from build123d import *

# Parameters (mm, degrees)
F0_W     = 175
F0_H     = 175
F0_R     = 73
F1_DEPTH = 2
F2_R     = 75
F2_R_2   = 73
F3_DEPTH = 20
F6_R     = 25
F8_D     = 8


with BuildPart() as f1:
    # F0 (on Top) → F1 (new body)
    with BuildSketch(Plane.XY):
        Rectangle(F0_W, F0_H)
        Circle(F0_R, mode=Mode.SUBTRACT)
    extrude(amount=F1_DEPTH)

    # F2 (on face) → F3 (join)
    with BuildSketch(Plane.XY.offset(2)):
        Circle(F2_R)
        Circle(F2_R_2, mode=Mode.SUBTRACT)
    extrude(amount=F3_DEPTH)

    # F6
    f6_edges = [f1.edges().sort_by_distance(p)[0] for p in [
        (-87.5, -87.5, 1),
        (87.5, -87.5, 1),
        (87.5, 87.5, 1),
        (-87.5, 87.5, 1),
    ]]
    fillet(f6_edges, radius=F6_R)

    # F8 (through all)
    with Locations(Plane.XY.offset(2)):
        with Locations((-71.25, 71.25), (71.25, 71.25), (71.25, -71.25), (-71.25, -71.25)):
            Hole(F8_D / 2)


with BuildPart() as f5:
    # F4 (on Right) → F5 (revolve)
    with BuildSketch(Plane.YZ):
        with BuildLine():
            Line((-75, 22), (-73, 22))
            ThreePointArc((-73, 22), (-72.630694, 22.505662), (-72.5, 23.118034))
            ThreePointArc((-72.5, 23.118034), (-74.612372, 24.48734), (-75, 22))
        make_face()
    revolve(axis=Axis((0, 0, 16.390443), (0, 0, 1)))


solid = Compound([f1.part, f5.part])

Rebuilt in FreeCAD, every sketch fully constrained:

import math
import FreeCAD as App
import Part
import Sketcher

V = App.Vector


def edges_at(feature, points):
    """Names of the edges that pass closest to the given points."""
    edges = feature.Shape.Edges
    near = lambda p: min(range(len(edges)), key=lambda i: edges[i].distToShape(Part.Vertex(*p))[0])
    return sorted({f"Edge{near(p) + 1}" for p in points})

doc = App.newDocument("Part")
params = doc.addObject("Spreadsheet::Sheet", "Params")
for row, (alias, value) in enumerate([
    ("sketch1_diameter", "146 mm"),
    ("sketch1_width", "175 mm"),
    ("pad1_length", "2 mm"),
    ("sketch2_diameter", "150 mm"),
    ("sketch2_diameter2", "146 mm"),
    ("pad2_length", "20 mm"),
    ("fillet_radius", "25 mm"),
    ("sketch3_diameter", "8 mm"),
    ("hole_diameter", "8 mm"),
    ("sketch4_radius", "1.5 mm"),
    ("sketch4_width", "2 mm"),
    ("revolution_angle", "360 deg"),
], start=1):
    params.set(f"A{row}", alias)
    params.set(f"B{row}", "=" + value)
    params.setAlias(f"B{row}", alias)

body = doc.addObject("PartDesign::Body", "Body")

# Sketch on XY plane
sketch1 = doc.addObject("Sketcher::SketchObject", "Sketch")
body.addObject(sketch1)
sketch1.AttachmentSupport = (doc.XY_Plane, [""])
sketch1.MapMode = "FlatFace"
sketch1.addGeometry(Part.LineSegment(V(-88, 88, 0), V(-88, -88, 0)), False)
sketch1.addGeometry(Part.LineSegment(V(-88, -88, 0), V(88, -88, 0)), False)
sketch1.addGeometry(Part.LineSegment(V(88, -88, 0), V(88, 88, 0)), False)
sketch1.addGeometry(Part.LineSegment(V(88, 88, 0), V(-88, 88, 0)), False)
sketch1.addGeometry(Part.Circle(V(0, 0, 0), V(0, 0, 1), 73), False)
sketch1.addConstraint(Sketcher.Constraint("Coincident", 0, 2, 1, 1))
sketch1.addConstraint(Sketcher.Constraint("Coincident", 1, 2, 2, 1))
sketch1.addConstraint(Sketcher.Constraint("Coincident", 2, 2, 3, 1))
sketch1.addConstraint(Sketcher.Constraint("Coincident", 3, 2, 0, 1))
sketch1.addConstraint(Sketcher.Constraint("Vertical", 0))
sketch1.addConstraint(Sketcher.Constraint("Horizontal", 1))
sketch1.addConstraint(Sketcher.Constraint("Vertical", 2))
sketch1.addConstraint(Sketcher.Constraint("Horizontal", 3))
sketch1.addConstraint(Sketcher.Constraint("Coincident", 4, 3, -1, 1))
sketch1.addConstraint(Sketcher.Constraint("Symmetric", 0, 2, 2, 2, -1, 1))
sketch1.addConstraint(Sketcher.Constraint("Equal", 3, 0))
sketch1.addConstraint(Sketcher.Constraint("Diameter", 4, 146.0))
sketch1.addConstraint(Sketcher.Constraint("DistanceX", 1, 1, 1, 2, 175.0))
sketch1.setExpression("Constraints[11]", "Params.sketch1_diameter")
sketch1.setExpression("Constraints[12]", "Params.sketch1_width")
pad1 = doc.addObject("PartDesign::Pad", "Pad")
body.addObject(pad1)
pad1.Profile = sketch1
pad1.setExpression("Length", "Params.pad1_length")

# Sketch on XY plane
sketch2 = doc.addObject("Sketcher::SketchObject", "Sketch001")
body.addObject(sketch2)
sketch2.AttachmentSupport = (doc.XY_Plane, [""])
sketch2.MapMode = "FlatFace"
sketch2.AttachmentOffset = App.Placement(V(0, 0, 2), App.Rotation())
sketch2.addGeometry(Part.Circle(V(0, 0, 0), V(0, 0, 1), 75), False)
sketch2.addGeometry(Part.Circle(V(0, 0, 0), V(0, 0, 1), 73), False)
sketch2.addConstraint(Sketcher.Constraint("Coincident", 0, 3, -1, 1))
sketch2.addConstraint(Sketcher.Constraint("Coincident", 1, 3, -1, 1))
sketch2.addConstraint(Sketcher.Constraint("Diameter", 0, 150.0))
sketch2.addConstraint(Sketcher.Constraint("Diameter", 1, 146.0))
sketch2.setExpression("Constraints[2]", "Params.sketch2_diameter")
sketch2.setExpression("Constraints[3]", "Params.sketch2_diameter2")
pad2 = doc.addObject("PartDesign::Pad", "Pad001")
body.addObject(pad2)
pad2.Profile = sketch2
pad2.setExpression("Length", "Params.pad2_length")
doc.recompute()

fillet = doc.addObject("PartDesign::Fillet", "Fillet")
body.addObject(fillet)
fillet.Base = (pad2, edges_at(pad2, [
    (-87.5, -87.5, 1),
    (87.5, -87.5, 1),
    (87.5, 87.5, 1),
    (-87.5, 87.5, 1),
]))
fillet.setExpression("Radius", "Params.fillet_radius")

# Sketch on XY plane
sketch3 = doc.addObject("Sketcher::SketchObject", "Sketch002")
body.addObject(sketch3)
sketch3.AttachmentSupport = (doc.XY_Plane, [""])
sketch3.MapMode = "FlatFace"
sketch3.AttachmentOffset = App.Placement(V(0, 0, 2), App.Rotation())
sketch3.addGeometry(Part.Circle(V(-71.2, 71.2, 0), V(0, 0, 1), 4), False)
sketch3.addGeometry(Part.Circle(V(71.2, 71.2, 0), V(0, 0, 1), 4), False)
sketch3.addGeometry(Part.Circle(V(71.2, -71.2, 0), V(0, 0, 1), 4), False)
sketch3.addGeometry(Part.Circle(V(-71.2, -71.2, 0), V(0, 0, 1), 4), False)
sketch3.addConstraint(Sketcher.Constraint("Equal", 0, 1))
sketch3.addConstraint(Sketcher.Constraint("Equal", 1, 2))
sketch3.addConstraint(Sketcher.Constraint("Equal", 2, 3))
sketch3.addConstraint(Sketcher.Constraint("Symmetric", 0, 3, 2, 3, -1, 1))
sketch3.addConstraint(Sketcher.Constraint("Symmetric", 1, 3, 3, 3, -1, 1))
sketch3.addConstraint(Sketcher.Constraint("Symmetric", 0, 3, 1, 3, -2))
sketch3.addConstraint(Sketcher.Constraint("Diameter", 0, 8.0))
sketch3.addConstraint(Sketcher.Constraint("DistanceX", 0, 3, 1, 3, 142.5))
sketch3.addConstraint(Sketcher.Constraint("DistanceY", 2, 3, 1, 3, 142.5))
sketch3.setExpression("Constraints[6]", "Params.sketch3_diameter")
doc.recompute()
hole = doc.addObject("PartDesign::Hole", "Hole")
body.addObject(hole)
hole.Profile = sketch3
hole.ThreadType = "None"
hole.setExpression("Diameter", "Params.hole_diameter")
hole.DepthType = "ThroughAll"
body2 = doc.addObject("PartDesign::Body", "Body001")

# Sketch on YZ plane
sketch4 = doc.addObject("Sketcher::SketchObject", "Sketch003")
body2.addObject(sketch4)
sketch4.AttachmentSupport = (doc.getObject("YZ_Plane001"), [""])
sketch4.MapMode = "FlatFace"
sketch4.addGeometry(Part.LineSegment(V(-75, 22, 0), V(-73, 22, 0)), False)
sketch4.addGeometry(Part.ArcOfCircle(Part.Circle(V(-74, 23.1, 0), V(0, 0, 1), 1.5), math.radians(-48), math.radians(0)), False)
sketch4.addGeometry(Part.ArcOfCircle(Part.Circle(V(-74, 23.1, 0), V(0, 0, 1), 1.5), math.radians(0), math.radians(228)), False)
sketch4.addConstraint(Sketcher.Constraint("Coincident", 0, 2, 1, 1))
sketch4.addConstraint(Sketcher.Constraint("Tangent", 1, 2, 2, 1))
sketch4.addConstraint(Sketcher.Constraint("Coincident", 2, 2, 0, 1))
sketch4.addConstraint(Sketcher.Constraint("Horizontal", 0))
sketch4.addConstraint(Sketcher.Constraint("Horizontal", 2, 3, 1, 2))
sketch4.addConstraint(Sketcher.Constraint("Radius", 2, 1.5))
sketch4.addConstraint(Sketcher.Constraint("DistanceX", 0, 1, 0, 2, 2.0))
sketch4.addConstraint(Sketcher.Constraint("DistanceX", 2, 3, -1, 1, 74.0))
sketch4.addConstraint(Sketcher.Constraint("DistanceX", 0, 2, -1, 1, 73.0))
sketch4.addConstraint(Sketcher.Constraint("DistanceY", -1, 1, 0, 2, 22.0))
sketch4.setExpression("Constraints[5]", "Params.sketch4_radius")
sketch4.setExpression("Constraints[6]", "Params.sketch4_width")
revolution = doc.addObject("PartDesign::Revolution", "Revolution")
body2.addObject(revolution)
revolution.Profile = sketch4
revolution.ReferenceAxis = (sketch4, ["V_Axis"])
revolution.setExpression("Angle", "Params.revolution_angle")

doc.recompute()
